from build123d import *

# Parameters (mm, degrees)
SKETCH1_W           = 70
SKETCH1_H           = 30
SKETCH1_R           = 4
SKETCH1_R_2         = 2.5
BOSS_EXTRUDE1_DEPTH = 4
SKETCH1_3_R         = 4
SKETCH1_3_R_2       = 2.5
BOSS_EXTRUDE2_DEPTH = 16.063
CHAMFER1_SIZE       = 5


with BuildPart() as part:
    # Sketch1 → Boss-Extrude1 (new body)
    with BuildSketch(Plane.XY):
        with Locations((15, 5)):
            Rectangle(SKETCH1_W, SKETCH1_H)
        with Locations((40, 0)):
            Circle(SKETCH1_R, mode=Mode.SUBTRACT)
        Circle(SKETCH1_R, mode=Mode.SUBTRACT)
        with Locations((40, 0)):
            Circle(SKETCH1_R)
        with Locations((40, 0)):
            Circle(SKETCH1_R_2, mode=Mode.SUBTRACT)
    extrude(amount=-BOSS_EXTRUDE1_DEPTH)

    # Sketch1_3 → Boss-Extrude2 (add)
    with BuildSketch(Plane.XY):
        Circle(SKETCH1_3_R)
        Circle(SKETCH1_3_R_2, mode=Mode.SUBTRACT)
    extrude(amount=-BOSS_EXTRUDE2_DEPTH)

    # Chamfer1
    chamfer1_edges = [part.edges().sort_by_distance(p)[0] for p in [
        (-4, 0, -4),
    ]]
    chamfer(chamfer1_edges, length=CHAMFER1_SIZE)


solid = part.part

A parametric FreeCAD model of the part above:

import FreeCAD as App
import Part
import Sketcher

V = App.Vector


def edges_at(feature, points):
    """Names of the edges that pass closest to the given points."""
    edges = feature.Shape.Edges
    near = lambda p: min(range(len(edges)), key=lambda i: edges[i].distToShape(Part.Vertex(*p))[0])
    return sorted({f"Edge{near(p) + 1}" for p in points})

doc = App.newDocument("Part")
body = doc.addObject("PartDesign::Body", "Body")

# Sketch on XY plane
sketch1 = body.newObject("Sketcher::SketchObject", "Sketch")
sketch1.AttachmentSupport = (doc.getObject("XY_Plane"), [""])
sketch1.MapMode = "FlatFace"
sketch1.addGeometry([
    Part.LineSegment(V(-20, 20, 0), V(-20, -10, 0)),  # 0
    Part.LineSegment(V(-20, -10, 0), V(50, -10, 0)),  # 1
    Part.LineSegment(V(50, -10, 0), V(50, 20, 0)),  # 2
    Part.LineSegment(V(50, 20, 0), V(-20, 20, 0)),  # 3
    Part.Circle(V(0, 0, 0), V(0, 0, 1), 4),  # 4
    Part.Circle(V(40, 0, 0), V(0, 0, 1), 2.5),  # 5
], False)
sketch1.addConstraint([
    Sketcher.Constraint("Coincident", 0, 2, 1, 1),
    Sketcher.Constraint("Coincident", 1, 2, 2, 1),
    Sketcher.Constraint("Coincident", 2, 2, 3, 1),
    Sketcher.Constraint("Coincident", 3, 2, 0, 1),
    Sketcher.Constraint("Vertical", 0),
    Sketcher.Constraint("Horizontal", 1),
    Sketcher.Constraint("Vertical", 2),
    Sketcher.Constraint("Horizontal", 3),
    Sketcher.Constraint("Coincident", 4, 3, -1, 1),
    Sketcher.Constraint("PointOnObject", 5, 3, -1),
    Sketcher.Constraint("Diameter", 4, 8.0),
    Sketcher.Constraint("Diameter", 5, 5.0),
    Sketcher.Constraint("DistanceX", 1, 1, 1, 2, 70.0),
    Sketcher.Constraint("DistanceY", 0, 2, 0, 1, 30.0),
    Sketcher.Constraint("DistanceX", -1, 1, 5, 3, 40.0),
    Sketcher.Constraint("DistanceX", 0, 2, -1, 1, 20.0),
    Sketcher.Constraint("DistanceY", 0, 2, -1, 1, 10.0),
])
pad1 = body.newObject("PartDesign::Pad", "Pad")
pad1.Profile = sketch1
pad1.Length = 4
pad1.Reversed = True

# Sketch on XY plane
sketch2 = body.newObject("Sketcher::SketchObject", "Sketch001")
sketch2.AttachmentSupport = (doc.getObject("XY_Plane"), [""])
sketch2.MapMode = "FlatFace"
sketch2.addGeometry([
    Part.Circle(V(0, 0, 0), V(0, 0, 1), 4),
    Part.Circle(V(0, 0, 0), V(0, 0, 1), 2.5),
], False)
sketch2.addConstraint([
    Sketcher.Constraint("Coincident", 0, 3, -1, 1),
    Sketcher.Constraint("Coincident", 1, 3, -1, 1),
    Sketcher.Constraint("Diameter", 0, 8.0),
    Sketcher.Constraint("Diameter", 1, 5.0),
])
pad2 = body.newObject("PartDesign::Pad", "Pad001")
pad2.Profile = sketch2
pad2.Length = 16.063
pad2.Reversed = True
doc.recompute()

chamfer = body.newObject("PartDesign::Chamfer", "Chamfer")
chamfer.Base = (pad2, edges_at(pad2, [(-4, 0, -4)]))
chamfer.Size = 5

doc.recompute()
